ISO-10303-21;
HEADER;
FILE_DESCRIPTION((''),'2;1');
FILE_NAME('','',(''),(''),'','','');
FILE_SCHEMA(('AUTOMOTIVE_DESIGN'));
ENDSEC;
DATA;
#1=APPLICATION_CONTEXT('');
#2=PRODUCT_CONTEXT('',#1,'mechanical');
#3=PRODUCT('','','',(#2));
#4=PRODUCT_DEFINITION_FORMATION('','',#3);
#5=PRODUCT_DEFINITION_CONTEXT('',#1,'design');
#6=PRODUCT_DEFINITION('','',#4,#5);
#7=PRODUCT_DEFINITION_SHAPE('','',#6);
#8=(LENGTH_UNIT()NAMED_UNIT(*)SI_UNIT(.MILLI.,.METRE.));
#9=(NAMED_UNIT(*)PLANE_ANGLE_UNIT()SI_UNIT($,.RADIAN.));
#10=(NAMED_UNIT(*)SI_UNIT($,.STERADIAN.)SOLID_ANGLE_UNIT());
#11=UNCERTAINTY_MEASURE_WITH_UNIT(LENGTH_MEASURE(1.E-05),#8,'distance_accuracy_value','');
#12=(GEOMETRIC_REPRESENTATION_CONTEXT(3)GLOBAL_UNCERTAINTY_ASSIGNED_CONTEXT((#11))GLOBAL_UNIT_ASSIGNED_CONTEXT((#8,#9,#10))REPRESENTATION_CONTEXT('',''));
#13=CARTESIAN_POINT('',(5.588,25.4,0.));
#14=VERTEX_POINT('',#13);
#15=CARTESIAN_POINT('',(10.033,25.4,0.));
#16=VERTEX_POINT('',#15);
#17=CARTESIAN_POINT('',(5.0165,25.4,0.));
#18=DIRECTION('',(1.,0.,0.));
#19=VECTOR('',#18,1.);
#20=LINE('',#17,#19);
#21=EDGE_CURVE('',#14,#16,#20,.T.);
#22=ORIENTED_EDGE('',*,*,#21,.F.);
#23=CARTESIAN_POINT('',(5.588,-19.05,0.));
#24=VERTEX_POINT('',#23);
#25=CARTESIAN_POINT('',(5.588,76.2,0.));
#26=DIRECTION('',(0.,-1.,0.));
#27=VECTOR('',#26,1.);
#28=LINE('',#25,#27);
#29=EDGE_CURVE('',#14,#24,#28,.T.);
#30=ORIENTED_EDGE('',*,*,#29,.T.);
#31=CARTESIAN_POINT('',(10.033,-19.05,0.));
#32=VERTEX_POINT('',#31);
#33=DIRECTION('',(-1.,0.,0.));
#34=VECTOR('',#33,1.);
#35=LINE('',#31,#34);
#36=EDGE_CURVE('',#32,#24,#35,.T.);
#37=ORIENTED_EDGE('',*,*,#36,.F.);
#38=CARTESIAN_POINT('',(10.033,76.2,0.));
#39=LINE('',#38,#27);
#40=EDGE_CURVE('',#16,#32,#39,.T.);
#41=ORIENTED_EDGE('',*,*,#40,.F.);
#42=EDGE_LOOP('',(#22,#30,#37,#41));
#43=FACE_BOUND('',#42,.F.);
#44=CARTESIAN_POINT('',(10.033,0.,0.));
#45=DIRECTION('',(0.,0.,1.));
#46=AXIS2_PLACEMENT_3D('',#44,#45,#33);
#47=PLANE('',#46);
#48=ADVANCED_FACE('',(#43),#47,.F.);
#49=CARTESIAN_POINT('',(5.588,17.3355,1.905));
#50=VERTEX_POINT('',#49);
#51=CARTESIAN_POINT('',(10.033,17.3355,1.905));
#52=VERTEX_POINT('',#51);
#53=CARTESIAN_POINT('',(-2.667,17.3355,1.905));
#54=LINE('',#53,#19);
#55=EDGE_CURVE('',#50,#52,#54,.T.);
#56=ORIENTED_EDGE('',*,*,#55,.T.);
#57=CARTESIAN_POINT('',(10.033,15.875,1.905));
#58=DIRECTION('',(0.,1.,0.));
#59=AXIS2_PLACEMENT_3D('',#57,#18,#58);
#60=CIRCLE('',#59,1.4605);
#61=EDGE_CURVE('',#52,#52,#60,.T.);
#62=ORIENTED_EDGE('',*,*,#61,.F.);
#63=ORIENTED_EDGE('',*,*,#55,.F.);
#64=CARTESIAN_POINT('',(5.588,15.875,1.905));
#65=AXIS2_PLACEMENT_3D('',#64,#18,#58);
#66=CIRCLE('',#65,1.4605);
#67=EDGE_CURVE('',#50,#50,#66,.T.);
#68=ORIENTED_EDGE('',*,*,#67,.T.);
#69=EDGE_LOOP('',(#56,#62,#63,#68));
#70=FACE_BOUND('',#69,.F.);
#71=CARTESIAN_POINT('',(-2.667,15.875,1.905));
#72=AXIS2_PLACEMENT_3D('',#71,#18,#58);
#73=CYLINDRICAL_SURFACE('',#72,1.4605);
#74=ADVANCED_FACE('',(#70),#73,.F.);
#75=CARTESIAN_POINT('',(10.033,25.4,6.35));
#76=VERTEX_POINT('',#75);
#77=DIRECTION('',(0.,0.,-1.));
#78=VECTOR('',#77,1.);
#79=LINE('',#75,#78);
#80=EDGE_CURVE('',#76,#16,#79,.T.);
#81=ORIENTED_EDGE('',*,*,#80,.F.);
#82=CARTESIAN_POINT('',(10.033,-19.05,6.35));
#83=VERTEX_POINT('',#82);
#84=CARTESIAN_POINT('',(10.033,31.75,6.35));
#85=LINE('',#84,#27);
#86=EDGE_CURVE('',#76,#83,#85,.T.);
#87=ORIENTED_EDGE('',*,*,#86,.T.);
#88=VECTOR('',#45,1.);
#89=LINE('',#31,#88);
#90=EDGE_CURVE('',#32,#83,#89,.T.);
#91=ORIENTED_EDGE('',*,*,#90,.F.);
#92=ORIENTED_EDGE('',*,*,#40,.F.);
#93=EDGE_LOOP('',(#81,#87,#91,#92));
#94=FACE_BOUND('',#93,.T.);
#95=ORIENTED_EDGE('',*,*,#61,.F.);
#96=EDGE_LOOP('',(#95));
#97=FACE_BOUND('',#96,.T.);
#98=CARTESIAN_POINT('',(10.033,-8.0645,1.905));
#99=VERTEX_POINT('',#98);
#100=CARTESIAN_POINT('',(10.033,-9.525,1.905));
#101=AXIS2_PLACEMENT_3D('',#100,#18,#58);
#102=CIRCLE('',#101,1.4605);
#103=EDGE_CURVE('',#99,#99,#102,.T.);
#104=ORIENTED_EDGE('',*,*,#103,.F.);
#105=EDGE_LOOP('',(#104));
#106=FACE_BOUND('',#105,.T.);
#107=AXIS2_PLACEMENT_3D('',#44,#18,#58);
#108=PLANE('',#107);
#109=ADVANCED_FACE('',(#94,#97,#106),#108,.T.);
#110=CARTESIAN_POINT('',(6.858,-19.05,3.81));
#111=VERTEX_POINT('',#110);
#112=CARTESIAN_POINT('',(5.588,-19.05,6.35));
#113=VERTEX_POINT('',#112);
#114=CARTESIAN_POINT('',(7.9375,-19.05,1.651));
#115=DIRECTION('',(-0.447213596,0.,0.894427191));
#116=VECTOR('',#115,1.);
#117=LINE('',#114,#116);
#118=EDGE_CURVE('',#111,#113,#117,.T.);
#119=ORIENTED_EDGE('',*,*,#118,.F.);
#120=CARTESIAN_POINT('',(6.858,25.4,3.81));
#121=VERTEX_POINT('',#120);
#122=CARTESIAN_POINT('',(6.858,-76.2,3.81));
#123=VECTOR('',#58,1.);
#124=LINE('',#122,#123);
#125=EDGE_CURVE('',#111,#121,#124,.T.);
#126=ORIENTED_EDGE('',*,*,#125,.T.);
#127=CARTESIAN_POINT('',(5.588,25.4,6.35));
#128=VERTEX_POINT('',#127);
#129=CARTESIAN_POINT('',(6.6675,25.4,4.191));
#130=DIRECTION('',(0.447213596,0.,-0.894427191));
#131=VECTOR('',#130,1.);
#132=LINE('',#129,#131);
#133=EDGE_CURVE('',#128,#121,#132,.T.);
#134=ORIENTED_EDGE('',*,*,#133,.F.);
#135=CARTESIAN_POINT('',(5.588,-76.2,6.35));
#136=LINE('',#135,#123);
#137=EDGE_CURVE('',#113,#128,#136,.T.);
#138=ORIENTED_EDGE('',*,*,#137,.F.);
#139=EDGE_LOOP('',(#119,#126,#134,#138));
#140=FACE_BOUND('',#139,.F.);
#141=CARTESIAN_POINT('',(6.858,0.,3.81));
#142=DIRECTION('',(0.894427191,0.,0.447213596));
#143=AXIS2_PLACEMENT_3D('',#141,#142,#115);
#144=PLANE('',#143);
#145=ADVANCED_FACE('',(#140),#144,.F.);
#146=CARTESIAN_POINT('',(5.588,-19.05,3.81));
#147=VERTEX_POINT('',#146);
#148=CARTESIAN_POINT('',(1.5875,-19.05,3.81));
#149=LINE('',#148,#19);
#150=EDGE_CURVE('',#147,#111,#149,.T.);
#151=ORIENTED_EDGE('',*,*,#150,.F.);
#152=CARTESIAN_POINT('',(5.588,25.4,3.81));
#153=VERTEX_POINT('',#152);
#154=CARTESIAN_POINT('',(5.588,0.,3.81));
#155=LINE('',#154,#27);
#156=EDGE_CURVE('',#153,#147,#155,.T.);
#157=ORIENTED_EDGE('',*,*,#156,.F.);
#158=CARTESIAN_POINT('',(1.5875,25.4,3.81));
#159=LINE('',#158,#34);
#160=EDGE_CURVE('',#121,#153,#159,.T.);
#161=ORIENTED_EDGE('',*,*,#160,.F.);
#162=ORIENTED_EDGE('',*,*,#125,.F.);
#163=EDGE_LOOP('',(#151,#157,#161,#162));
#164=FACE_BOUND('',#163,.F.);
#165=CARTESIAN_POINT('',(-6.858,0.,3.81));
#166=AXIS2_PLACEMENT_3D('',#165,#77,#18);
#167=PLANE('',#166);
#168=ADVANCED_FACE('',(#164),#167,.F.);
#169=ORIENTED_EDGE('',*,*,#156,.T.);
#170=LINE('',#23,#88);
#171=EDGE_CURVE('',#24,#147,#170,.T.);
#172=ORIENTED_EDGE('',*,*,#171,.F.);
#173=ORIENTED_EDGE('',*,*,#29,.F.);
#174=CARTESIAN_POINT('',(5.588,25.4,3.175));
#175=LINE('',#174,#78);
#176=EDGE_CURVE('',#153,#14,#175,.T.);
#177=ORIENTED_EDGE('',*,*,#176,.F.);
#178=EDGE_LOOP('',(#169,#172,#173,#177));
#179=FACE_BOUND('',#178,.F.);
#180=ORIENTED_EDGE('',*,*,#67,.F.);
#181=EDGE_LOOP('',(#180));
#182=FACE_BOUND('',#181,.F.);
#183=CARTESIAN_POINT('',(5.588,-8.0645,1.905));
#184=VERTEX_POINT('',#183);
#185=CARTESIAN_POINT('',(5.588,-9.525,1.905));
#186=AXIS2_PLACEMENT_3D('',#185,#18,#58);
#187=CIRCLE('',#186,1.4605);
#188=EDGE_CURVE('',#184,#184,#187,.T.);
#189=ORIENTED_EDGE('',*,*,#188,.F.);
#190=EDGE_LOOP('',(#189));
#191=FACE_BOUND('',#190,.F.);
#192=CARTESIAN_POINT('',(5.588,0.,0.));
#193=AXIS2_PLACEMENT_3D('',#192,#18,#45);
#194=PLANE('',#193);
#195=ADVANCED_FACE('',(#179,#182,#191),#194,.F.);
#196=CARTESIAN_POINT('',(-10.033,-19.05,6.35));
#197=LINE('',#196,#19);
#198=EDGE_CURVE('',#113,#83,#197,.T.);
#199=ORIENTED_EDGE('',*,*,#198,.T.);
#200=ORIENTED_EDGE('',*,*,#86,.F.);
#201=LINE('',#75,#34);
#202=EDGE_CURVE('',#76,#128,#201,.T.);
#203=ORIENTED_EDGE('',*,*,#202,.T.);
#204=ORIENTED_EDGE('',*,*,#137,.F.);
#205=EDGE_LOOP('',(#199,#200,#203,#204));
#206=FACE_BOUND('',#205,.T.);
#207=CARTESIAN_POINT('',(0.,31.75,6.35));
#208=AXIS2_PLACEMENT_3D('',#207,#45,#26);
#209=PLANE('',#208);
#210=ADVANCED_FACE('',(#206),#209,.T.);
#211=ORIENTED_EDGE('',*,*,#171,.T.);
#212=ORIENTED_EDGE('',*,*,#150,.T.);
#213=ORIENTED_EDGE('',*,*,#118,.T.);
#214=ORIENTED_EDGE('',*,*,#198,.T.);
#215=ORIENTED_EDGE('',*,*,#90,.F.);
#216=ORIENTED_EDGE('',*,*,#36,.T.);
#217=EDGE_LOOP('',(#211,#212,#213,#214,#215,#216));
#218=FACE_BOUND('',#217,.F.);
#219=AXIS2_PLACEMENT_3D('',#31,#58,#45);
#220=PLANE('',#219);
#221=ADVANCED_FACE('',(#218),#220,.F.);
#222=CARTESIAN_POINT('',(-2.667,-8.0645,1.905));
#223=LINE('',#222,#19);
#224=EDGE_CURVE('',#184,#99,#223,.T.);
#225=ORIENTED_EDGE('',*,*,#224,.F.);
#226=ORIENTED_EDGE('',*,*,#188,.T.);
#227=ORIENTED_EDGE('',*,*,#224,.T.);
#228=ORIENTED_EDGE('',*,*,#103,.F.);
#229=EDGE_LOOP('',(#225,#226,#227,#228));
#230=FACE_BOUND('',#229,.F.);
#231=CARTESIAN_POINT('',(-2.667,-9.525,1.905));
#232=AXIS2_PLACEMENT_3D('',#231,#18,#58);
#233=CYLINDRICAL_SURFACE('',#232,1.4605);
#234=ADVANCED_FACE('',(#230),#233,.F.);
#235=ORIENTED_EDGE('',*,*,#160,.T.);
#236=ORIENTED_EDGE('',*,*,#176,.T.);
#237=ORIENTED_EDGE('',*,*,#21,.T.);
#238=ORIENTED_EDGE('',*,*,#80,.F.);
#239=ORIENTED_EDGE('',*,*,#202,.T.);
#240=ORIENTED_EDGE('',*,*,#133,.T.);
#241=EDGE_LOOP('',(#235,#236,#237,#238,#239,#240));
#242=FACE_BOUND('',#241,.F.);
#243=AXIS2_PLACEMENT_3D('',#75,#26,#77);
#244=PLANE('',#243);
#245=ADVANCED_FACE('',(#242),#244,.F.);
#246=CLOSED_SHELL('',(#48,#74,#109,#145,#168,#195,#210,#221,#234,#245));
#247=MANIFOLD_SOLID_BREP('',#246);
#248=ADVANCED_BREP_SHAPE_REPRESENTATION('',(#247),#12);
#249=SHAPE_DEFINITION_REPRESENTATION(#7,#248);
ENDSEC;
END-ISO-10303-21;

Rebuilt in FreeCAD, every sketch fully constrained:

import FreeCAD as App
import Part
import Sketcher
Q = App.Units.Quantity

doc = App.newDocument("Part")
body = doc.addObject("PartDesign::Body", "Body")

sketch1 = body.newObject("Sketcher::SketchObject", "Sketch")
sketch1.AttachmentSupport = (doc.getObject("YZ_Plane"), [""])
sketch1.MapMode = "FlatFace"
sketch1.addGeometry(Part.LineSegment(App.Vector(19, -6, 0), App.Vector(32, 6, 0)), False)
sketch1.addGeometry(Part.LineSegment(App.Vector(32, 6, 0), App.Vector(-19, 6, 0)), False)
sketch1.addGeometry(Part.LineSegment(App.Vector(-19, 6, 0), App.Vector(-32, -6, 0)), False)
sketch1.addGeometry(Part.LineSegment(App.Vector(-32, -6, 0), App.Vector(19, -6, 0)), False)
sketch1.addConstraint(Sketcher.Constraint("Coincident", 0, 2, 1, 1))
sketch1.addConstraint(Sketcher.Constraint("Coincident", 1, 2, 2, 1))
sketch1.addConstraint(Sketcher.Constraint("Coincident", 2, 2, 3, 1))
sketch1.addConstraint(Sketcher.Constraint("Coincident", 3, 2, 0, 1))
sketch1.addConstraint(Sketcher.Constraint("Horizontal", 1))
sketch1.addConstraint(Sketcher.Constraint("Horizontal", 3))
sketch1.addConstraint(Sketcher.Constraint("Symmetric", 0, 2, 2, 2, -1, 1))
sketch1.addConstraint(Sketcher.Constraint("Parallel", 0, 2))
sketch1.addConstraint(Sketcher.Constraint("DistanceX", 1, 2, 1, 1, Q("2 in")))
sketch1.addConstraint(Sketcher.Constraint("Angle", 0, Q("45 deg")))
sketch1.addConstraint(Sketcher.Constraint("DistanceX", 2, 2, 1, 2, Q("0.5 in")))
pad1 = body.newObject("PartDesign::Pad", "Pad")
pad1.Profile = sketch1
pad1.Length = Q("0.79 in")
pad1.Midplane = True

sketch2 = body.newObject("Sketcher::SketchObject", "Sketch001")
sketch2.AttachmentSupport = (doc.getObject("XZ_Plane"), [""])
sketch2.MapMode = "FlatFace"
sketch2.addGeometry(Part.LineSegment(App.Vector(-6.9, -3.8, 0), App.Vector(-5.6, -6.3, 0)), False)
sketch2.addGeometry(Part.LineSegment(App.Vector(-5.6, -6.3, 0), App.Vector(5.6, -6.3, 0)), False)
sketch2.addGeometry(Part.LineSegment(App.Vector(5.6, -6.3, 0), App.Vector(6.9, -3.8, 0)), False)
sketch2.addGeometry(Part.LineSegment(App.Vector(6.9, -3.8, 0), App.Vector(-6.9, -3.8, 0)), False)
sketch2.addGeometry(Part.LineSegment(App.Vector(5.6, 6.3, 0), App.Vector(-5.6, 6.3, 0)), False)
sketch2.addGeometry(Part.LineSegment(App.Vector(-5.6, 6.3, 0), App.Vector(-6.9, 3.8, 0)), False)
sketch2.addGeometry(Part.LineSegment(App.Vector(-6.9, 3.8, 0), App.Vector(6.9, 3.8, 0)), False)
sketch2.addGeometry(Part.LineSegment(App.Vector(6.9, 3.8, 0), App.Vector(5.6, 6.3, 0)), False)
sketch2.addConstraint(Sketcher.Constraint("Coincident", 0, 2, 1, 1))
sketch2.addConstraint(Sketcher.Constraint("Coincident", 1, 2, 2, 1))
sketch2.addConstraint(Sketcher.Constraint("Coincident", 2, 2, 3, 1))
sketch2.addConstraint(Sketcher.Constraint("Coincident", 3, 2, 0, 1))
sketch2.addConstraint(Sketcher.Constraint("Coincident", 4, 2, 5, 1))
sketch2.addConstraint(Sketcher.Constraint("Coincident", 5, 2, 6, 1))
sketch2.addConstraint(Sketcher.Constraint("Coincident", 6, 2, 7, 1))
sketch2.addConstraint(Sketcher.Constraint("Coincident", 7, 2, 4, 1))
sketch2.addConstraint(Sketcher.Constraint("Horizontal", 1))
sketch2.addConstraint(Sketcher.Constraint("Horizontal", 3))
sketch2.addConstraint(Sketcher.Constraint("Horizontal", 4))
sketch2.addConstraint(Sketcher.Constraint("Horizontal", 6))
sketch2.addConstraint(Sketcher.Constraint("Symmetric", 1, 2, 4, 2, -1, 1))
sketch2.addConstraint(Sketcher.Constraint("Symmetric", 2, 2, 5, 2, -1, 1))
sketch2.addConstraint(Sketcher.Constraint("Parallel", 0, 7))
sketch2.addConstraint(Sketcher.Constraint("Vertical", 0, 2, 4, 2))
sketch2.addConstraint(Sketcher.Constraint("Vertical", 3, 2, 5, 2))
sketch2.addConstraint(Sketcher.Constraint("Vertical", 2, 2, 6, 2))
sketch2.addConstraint(Sketcher.Constraint("DistanceX", 1, 1, 1, 2, Q("0.44 in")))
sketch2.addConstraint(Sketcher.Constraint("DistanceX", 3, 2, 3, 1, Q("0.54 in")))
sketch2.addConstraint(Sketcher.Constraint("DistanceY", 1, 2, 2, 2, Q("0.1 in")))
sketch2.addConstraint(Sketcher.Constraint("DistanceY", 3, 2, 4, 2, Q("0.4 in")))
pocket1 = body.newObject("PartDesign::Pocket", "Pocket")
pocket1.Profile = sketch2
pocket1.Length = Q("6 in")
pocket1.Midplane = True

sketch3 = body.newObject("Sketcher::SketchObject", "Sketch002")
sketch3.AttachmentSupport = (doc.getObject("XZ_Plane"), [""])
sketch3.MapMode = "FlatFace"
sketch3.addGeometry(Part.LineSegment(App.Vector(16.3, -9.6, 0), App.Vector(10, 0, 0)), False)
sketch3.addGeometry(Part.LineSegment(App.Vector(10, 0, 0), App.Vector(5.6, 0, 0)), False)
sketch3.addGeometry(Part.LineSegment(App.Vector(5.6, 0, 0), App.Vector(5.6, 6.3, 0)), False)
sketch3.addGeometry(Part.LineSegment(App.Vector(5.6, 6.3, 0), App.Vector(-11.4, 6.3, 0)), False)
sketch3.addGeometry(Part.LineSegment(App.Vector(-11.4, 6.3, 0), App.Vector(-11.4, -9.6, 0)), False)
sketch3.addGeometry(Part.LineSegment(App.Vector(-11.4, -9.6, 0), App.Vector(16.3, -9.6, 0)), False)
sketch3.addConstraint(Sketcher.Constraint("Coincident", 0, 2, 1, 1))
sketch3.addConstraint(Sketcher.Constraint("Coincident", 1, 2, 2, 1))
sketch3.addConstraint(Sketcher.Constraint("Coincident", 2, 2, 3, 1))
sketch3.addConstraint(Sketcher.Constraint("Coincident", 3, 2, 4, 1))
sketch3.addConstraint(Sketcher.Constraint("Coincident", 4, 2, 5, 1))
sketch3.addConstraint(Sketcher.Constraint("Coincident", 5, 2, 0, 1))
sketch3.addConstraint(Sketcher.Constraint("Horizontal", 1))
sketch3.addConstraint(Sketcher.Constraint("Vertical", 2))
sketch3.addConstraint(Sketcher.Constraint("Horizontal", 3))
sketch3.addConstraint(Sketcher.Constraint("Vertical", 4))
sketch3.addConstraint(Sketcher.Constraint("Horizontal", 5))
sketch3.addConstraint(Sketcher.Constraint("PointOnObject", 0, 2, -1))
sketch3.addConstraint(Sketcher.Constraint("DistanceY", 2, 1, 2, 2, Q("0.25 in")))
sketch3.addConstraint(Sketcher.Constraint("DistanceX", 1, 2, 1, 1, Q("0.175 in")))
sketch3.addConstraint(Sketcher.Constraint("DistanceX", -1, 1, 1, 2, Q("0.22 in")))
sketch3.addConstraint(Sketcher.Constraint("DistanceX", 3, 2, 3, 1, 16.975688))
sketch3.addConstraint(Sketcher.Constraint("DistanceX", 5, 1, 5, 2, 27.645671))
sketch3.addConstraint(Sketcher.Constraint("Distance", 0, 11.419109))
pocket2 = body.newObject("PartDesign::Pocket", "Pocket001")
pocket2.Profile = sketch3
pocket2.Length = Q("6 in")
pocket2.Midplane = True

sketch4 = body.newObject("Sketcher::SketchObject", "Sketch003")
sketch4.AttachmentSupport = (doc.getObject("YZ_Plane"), [""])
sketch4.MapMode = "FlatFace"
sketch4.AttachmentOffset = App.Placement(App.Vector(0, 0, 0.22 * 25.4), App.Rotation())
sketch4.addGeometry(Part.Circle(App.Vector(15.9, 1.9, 0), App.Vector(0, 0, 1), 1.5), False)
sketch4.addGeometry(Part.Circle(App.Vector(-9.5, 1.9, 0), App.Vector(0, 0, 1), 1.5), False)
sketch4.addConstraint(Sketcher.Constraint("Equal", 0, 1))
sketch4.addConstraint(Sketcher.Constraint("Horizontal", 0, 3, 1, 3))
sketch4.addConstraint(Sketcher.Constraint("Diameter", 0, Q("0.115 in")))
sketch4.addConstraint(Sketcher.Constraint("DistanceX", 1, 3, 0, 3, Q("1 in")))
sketch4.addConstraint(Sketcher.Constraint("DistanceX", -1, 1, 0, 3, Q("0.625 in")))
sketch4.addConstraint(Sketcher.Constraint("DistanceY", -1, 1, 0, 3, Q("0.075 in")))
doc.recompute()
hole = body.newObject("PartDesign::Hole", "Hole")
hole.Profile = sketch4
hole.ThreadType = "None"
hole.Diameter = Q("0.115 in")
hole.DepthType = "Dimension"
hole.Depth = Q("0.325 in")
hole.DrillPoint = "Flat"
hole.Reversed = True

sketch5 = body.newObject("Sketcher::SketchObject", "Sketch004")
sketch5.AttachmentSupport = (doc.getObject("YZ_Plane"), [""])
sketch5.MapMode = "FlatFace"
sketch5.AttachmentOffset = App.Placement(App.Vector(0, 0, 0.395 * 25.4), App.Rotation())
sketch5.addGeometry(Part.LineSegment(App.Vector(-19, 6, 0), App.Vector(-25, 0, 0)), False)
sketch5.addGeometry(Part.LineSegment(App.Vector(-25, 0, 0), App.Vector(-19, 0, 0)), False)
sketch5.addGeometry(Part.LineSegment(App.Vector(-19, 0, 0), App.Vector(-19, 6, 0)), False)
sketch5.addGeometry(Part.LineSegment(App.Vector(25, 6, 0), App.Vector(25, 0, 0)), False)
sketch5.addGeometry(Part.LineSegment(App.Vector(25, 0, 0), App.Vector(32, 6, 0)), False)
sketch5.addGeometry(Part.LineSegment(App.Vector(32, 6, 0), App.Vector(25, 6, 0)), False)
sketch5.addConstraint(Sketcher.Constraint("Coincident", 0, 2, 1, 1))
sketch5.addConstraint(Sketcher.Constraint("Coincident", 1, 2, 2, 1))
sketch5.addConstraint(Sketcher.Constraint("Coincident", 2, 2, 0, 1))
sketch5.addConstraint(Sketcher.Constraint("Coincident", 3, 2, 4, 1))
sketch5.addConstraint(Sketcher.Constraint("Coincident", 4, 2, 5, 1))
sketch5.addConstraint(Sketcher.Constraint("Coincident", 5, 2, 3, 1))
sketch5.addConstraint(Sketcher.Constraint("Horizontal", 1))
sketch5.addConstraint(Sketcher.Constraint("Vertical", 2))
sketch5.addConstraint(Sketcher.Constraint("Vertical", 3))
sketch5.addConstraint(Sketcher.Constraint("Horizontal", 5))
sketch5.addConstraint(Sketcher.Constraint("Symmetric", 0, 2, 3, 2, -1, 1))
sketch5.addConstraint(Sketcher.Constraint("PointOnObject", 0, 2, -1))
sketch5.addConstraint(Sketcher.Constraint("Parallel", 0, 4))
sketch5.addConstraint(Sketcher.Constraint("Horizontal", 2, 2, 4, 2))
sketch5.addConstraint(Sketcher.Constraint("Equal", 5, 2))
sketch5.addConstraint(Sketcher.Constraint("DistanceX", 0, 2, -1, 1, Q("1 in")))
sketch5.addConstraint(Sketcher.Constraint("DistanceX", 1, 1, 1, 2, Q("0.25 in")))
pocket3 = body.newObject("PartDesign::Pocket", "Pocket002")
pocket3.Profile = sketch5
pocket3.Type = "ThroughAll"

doc.recompute()
